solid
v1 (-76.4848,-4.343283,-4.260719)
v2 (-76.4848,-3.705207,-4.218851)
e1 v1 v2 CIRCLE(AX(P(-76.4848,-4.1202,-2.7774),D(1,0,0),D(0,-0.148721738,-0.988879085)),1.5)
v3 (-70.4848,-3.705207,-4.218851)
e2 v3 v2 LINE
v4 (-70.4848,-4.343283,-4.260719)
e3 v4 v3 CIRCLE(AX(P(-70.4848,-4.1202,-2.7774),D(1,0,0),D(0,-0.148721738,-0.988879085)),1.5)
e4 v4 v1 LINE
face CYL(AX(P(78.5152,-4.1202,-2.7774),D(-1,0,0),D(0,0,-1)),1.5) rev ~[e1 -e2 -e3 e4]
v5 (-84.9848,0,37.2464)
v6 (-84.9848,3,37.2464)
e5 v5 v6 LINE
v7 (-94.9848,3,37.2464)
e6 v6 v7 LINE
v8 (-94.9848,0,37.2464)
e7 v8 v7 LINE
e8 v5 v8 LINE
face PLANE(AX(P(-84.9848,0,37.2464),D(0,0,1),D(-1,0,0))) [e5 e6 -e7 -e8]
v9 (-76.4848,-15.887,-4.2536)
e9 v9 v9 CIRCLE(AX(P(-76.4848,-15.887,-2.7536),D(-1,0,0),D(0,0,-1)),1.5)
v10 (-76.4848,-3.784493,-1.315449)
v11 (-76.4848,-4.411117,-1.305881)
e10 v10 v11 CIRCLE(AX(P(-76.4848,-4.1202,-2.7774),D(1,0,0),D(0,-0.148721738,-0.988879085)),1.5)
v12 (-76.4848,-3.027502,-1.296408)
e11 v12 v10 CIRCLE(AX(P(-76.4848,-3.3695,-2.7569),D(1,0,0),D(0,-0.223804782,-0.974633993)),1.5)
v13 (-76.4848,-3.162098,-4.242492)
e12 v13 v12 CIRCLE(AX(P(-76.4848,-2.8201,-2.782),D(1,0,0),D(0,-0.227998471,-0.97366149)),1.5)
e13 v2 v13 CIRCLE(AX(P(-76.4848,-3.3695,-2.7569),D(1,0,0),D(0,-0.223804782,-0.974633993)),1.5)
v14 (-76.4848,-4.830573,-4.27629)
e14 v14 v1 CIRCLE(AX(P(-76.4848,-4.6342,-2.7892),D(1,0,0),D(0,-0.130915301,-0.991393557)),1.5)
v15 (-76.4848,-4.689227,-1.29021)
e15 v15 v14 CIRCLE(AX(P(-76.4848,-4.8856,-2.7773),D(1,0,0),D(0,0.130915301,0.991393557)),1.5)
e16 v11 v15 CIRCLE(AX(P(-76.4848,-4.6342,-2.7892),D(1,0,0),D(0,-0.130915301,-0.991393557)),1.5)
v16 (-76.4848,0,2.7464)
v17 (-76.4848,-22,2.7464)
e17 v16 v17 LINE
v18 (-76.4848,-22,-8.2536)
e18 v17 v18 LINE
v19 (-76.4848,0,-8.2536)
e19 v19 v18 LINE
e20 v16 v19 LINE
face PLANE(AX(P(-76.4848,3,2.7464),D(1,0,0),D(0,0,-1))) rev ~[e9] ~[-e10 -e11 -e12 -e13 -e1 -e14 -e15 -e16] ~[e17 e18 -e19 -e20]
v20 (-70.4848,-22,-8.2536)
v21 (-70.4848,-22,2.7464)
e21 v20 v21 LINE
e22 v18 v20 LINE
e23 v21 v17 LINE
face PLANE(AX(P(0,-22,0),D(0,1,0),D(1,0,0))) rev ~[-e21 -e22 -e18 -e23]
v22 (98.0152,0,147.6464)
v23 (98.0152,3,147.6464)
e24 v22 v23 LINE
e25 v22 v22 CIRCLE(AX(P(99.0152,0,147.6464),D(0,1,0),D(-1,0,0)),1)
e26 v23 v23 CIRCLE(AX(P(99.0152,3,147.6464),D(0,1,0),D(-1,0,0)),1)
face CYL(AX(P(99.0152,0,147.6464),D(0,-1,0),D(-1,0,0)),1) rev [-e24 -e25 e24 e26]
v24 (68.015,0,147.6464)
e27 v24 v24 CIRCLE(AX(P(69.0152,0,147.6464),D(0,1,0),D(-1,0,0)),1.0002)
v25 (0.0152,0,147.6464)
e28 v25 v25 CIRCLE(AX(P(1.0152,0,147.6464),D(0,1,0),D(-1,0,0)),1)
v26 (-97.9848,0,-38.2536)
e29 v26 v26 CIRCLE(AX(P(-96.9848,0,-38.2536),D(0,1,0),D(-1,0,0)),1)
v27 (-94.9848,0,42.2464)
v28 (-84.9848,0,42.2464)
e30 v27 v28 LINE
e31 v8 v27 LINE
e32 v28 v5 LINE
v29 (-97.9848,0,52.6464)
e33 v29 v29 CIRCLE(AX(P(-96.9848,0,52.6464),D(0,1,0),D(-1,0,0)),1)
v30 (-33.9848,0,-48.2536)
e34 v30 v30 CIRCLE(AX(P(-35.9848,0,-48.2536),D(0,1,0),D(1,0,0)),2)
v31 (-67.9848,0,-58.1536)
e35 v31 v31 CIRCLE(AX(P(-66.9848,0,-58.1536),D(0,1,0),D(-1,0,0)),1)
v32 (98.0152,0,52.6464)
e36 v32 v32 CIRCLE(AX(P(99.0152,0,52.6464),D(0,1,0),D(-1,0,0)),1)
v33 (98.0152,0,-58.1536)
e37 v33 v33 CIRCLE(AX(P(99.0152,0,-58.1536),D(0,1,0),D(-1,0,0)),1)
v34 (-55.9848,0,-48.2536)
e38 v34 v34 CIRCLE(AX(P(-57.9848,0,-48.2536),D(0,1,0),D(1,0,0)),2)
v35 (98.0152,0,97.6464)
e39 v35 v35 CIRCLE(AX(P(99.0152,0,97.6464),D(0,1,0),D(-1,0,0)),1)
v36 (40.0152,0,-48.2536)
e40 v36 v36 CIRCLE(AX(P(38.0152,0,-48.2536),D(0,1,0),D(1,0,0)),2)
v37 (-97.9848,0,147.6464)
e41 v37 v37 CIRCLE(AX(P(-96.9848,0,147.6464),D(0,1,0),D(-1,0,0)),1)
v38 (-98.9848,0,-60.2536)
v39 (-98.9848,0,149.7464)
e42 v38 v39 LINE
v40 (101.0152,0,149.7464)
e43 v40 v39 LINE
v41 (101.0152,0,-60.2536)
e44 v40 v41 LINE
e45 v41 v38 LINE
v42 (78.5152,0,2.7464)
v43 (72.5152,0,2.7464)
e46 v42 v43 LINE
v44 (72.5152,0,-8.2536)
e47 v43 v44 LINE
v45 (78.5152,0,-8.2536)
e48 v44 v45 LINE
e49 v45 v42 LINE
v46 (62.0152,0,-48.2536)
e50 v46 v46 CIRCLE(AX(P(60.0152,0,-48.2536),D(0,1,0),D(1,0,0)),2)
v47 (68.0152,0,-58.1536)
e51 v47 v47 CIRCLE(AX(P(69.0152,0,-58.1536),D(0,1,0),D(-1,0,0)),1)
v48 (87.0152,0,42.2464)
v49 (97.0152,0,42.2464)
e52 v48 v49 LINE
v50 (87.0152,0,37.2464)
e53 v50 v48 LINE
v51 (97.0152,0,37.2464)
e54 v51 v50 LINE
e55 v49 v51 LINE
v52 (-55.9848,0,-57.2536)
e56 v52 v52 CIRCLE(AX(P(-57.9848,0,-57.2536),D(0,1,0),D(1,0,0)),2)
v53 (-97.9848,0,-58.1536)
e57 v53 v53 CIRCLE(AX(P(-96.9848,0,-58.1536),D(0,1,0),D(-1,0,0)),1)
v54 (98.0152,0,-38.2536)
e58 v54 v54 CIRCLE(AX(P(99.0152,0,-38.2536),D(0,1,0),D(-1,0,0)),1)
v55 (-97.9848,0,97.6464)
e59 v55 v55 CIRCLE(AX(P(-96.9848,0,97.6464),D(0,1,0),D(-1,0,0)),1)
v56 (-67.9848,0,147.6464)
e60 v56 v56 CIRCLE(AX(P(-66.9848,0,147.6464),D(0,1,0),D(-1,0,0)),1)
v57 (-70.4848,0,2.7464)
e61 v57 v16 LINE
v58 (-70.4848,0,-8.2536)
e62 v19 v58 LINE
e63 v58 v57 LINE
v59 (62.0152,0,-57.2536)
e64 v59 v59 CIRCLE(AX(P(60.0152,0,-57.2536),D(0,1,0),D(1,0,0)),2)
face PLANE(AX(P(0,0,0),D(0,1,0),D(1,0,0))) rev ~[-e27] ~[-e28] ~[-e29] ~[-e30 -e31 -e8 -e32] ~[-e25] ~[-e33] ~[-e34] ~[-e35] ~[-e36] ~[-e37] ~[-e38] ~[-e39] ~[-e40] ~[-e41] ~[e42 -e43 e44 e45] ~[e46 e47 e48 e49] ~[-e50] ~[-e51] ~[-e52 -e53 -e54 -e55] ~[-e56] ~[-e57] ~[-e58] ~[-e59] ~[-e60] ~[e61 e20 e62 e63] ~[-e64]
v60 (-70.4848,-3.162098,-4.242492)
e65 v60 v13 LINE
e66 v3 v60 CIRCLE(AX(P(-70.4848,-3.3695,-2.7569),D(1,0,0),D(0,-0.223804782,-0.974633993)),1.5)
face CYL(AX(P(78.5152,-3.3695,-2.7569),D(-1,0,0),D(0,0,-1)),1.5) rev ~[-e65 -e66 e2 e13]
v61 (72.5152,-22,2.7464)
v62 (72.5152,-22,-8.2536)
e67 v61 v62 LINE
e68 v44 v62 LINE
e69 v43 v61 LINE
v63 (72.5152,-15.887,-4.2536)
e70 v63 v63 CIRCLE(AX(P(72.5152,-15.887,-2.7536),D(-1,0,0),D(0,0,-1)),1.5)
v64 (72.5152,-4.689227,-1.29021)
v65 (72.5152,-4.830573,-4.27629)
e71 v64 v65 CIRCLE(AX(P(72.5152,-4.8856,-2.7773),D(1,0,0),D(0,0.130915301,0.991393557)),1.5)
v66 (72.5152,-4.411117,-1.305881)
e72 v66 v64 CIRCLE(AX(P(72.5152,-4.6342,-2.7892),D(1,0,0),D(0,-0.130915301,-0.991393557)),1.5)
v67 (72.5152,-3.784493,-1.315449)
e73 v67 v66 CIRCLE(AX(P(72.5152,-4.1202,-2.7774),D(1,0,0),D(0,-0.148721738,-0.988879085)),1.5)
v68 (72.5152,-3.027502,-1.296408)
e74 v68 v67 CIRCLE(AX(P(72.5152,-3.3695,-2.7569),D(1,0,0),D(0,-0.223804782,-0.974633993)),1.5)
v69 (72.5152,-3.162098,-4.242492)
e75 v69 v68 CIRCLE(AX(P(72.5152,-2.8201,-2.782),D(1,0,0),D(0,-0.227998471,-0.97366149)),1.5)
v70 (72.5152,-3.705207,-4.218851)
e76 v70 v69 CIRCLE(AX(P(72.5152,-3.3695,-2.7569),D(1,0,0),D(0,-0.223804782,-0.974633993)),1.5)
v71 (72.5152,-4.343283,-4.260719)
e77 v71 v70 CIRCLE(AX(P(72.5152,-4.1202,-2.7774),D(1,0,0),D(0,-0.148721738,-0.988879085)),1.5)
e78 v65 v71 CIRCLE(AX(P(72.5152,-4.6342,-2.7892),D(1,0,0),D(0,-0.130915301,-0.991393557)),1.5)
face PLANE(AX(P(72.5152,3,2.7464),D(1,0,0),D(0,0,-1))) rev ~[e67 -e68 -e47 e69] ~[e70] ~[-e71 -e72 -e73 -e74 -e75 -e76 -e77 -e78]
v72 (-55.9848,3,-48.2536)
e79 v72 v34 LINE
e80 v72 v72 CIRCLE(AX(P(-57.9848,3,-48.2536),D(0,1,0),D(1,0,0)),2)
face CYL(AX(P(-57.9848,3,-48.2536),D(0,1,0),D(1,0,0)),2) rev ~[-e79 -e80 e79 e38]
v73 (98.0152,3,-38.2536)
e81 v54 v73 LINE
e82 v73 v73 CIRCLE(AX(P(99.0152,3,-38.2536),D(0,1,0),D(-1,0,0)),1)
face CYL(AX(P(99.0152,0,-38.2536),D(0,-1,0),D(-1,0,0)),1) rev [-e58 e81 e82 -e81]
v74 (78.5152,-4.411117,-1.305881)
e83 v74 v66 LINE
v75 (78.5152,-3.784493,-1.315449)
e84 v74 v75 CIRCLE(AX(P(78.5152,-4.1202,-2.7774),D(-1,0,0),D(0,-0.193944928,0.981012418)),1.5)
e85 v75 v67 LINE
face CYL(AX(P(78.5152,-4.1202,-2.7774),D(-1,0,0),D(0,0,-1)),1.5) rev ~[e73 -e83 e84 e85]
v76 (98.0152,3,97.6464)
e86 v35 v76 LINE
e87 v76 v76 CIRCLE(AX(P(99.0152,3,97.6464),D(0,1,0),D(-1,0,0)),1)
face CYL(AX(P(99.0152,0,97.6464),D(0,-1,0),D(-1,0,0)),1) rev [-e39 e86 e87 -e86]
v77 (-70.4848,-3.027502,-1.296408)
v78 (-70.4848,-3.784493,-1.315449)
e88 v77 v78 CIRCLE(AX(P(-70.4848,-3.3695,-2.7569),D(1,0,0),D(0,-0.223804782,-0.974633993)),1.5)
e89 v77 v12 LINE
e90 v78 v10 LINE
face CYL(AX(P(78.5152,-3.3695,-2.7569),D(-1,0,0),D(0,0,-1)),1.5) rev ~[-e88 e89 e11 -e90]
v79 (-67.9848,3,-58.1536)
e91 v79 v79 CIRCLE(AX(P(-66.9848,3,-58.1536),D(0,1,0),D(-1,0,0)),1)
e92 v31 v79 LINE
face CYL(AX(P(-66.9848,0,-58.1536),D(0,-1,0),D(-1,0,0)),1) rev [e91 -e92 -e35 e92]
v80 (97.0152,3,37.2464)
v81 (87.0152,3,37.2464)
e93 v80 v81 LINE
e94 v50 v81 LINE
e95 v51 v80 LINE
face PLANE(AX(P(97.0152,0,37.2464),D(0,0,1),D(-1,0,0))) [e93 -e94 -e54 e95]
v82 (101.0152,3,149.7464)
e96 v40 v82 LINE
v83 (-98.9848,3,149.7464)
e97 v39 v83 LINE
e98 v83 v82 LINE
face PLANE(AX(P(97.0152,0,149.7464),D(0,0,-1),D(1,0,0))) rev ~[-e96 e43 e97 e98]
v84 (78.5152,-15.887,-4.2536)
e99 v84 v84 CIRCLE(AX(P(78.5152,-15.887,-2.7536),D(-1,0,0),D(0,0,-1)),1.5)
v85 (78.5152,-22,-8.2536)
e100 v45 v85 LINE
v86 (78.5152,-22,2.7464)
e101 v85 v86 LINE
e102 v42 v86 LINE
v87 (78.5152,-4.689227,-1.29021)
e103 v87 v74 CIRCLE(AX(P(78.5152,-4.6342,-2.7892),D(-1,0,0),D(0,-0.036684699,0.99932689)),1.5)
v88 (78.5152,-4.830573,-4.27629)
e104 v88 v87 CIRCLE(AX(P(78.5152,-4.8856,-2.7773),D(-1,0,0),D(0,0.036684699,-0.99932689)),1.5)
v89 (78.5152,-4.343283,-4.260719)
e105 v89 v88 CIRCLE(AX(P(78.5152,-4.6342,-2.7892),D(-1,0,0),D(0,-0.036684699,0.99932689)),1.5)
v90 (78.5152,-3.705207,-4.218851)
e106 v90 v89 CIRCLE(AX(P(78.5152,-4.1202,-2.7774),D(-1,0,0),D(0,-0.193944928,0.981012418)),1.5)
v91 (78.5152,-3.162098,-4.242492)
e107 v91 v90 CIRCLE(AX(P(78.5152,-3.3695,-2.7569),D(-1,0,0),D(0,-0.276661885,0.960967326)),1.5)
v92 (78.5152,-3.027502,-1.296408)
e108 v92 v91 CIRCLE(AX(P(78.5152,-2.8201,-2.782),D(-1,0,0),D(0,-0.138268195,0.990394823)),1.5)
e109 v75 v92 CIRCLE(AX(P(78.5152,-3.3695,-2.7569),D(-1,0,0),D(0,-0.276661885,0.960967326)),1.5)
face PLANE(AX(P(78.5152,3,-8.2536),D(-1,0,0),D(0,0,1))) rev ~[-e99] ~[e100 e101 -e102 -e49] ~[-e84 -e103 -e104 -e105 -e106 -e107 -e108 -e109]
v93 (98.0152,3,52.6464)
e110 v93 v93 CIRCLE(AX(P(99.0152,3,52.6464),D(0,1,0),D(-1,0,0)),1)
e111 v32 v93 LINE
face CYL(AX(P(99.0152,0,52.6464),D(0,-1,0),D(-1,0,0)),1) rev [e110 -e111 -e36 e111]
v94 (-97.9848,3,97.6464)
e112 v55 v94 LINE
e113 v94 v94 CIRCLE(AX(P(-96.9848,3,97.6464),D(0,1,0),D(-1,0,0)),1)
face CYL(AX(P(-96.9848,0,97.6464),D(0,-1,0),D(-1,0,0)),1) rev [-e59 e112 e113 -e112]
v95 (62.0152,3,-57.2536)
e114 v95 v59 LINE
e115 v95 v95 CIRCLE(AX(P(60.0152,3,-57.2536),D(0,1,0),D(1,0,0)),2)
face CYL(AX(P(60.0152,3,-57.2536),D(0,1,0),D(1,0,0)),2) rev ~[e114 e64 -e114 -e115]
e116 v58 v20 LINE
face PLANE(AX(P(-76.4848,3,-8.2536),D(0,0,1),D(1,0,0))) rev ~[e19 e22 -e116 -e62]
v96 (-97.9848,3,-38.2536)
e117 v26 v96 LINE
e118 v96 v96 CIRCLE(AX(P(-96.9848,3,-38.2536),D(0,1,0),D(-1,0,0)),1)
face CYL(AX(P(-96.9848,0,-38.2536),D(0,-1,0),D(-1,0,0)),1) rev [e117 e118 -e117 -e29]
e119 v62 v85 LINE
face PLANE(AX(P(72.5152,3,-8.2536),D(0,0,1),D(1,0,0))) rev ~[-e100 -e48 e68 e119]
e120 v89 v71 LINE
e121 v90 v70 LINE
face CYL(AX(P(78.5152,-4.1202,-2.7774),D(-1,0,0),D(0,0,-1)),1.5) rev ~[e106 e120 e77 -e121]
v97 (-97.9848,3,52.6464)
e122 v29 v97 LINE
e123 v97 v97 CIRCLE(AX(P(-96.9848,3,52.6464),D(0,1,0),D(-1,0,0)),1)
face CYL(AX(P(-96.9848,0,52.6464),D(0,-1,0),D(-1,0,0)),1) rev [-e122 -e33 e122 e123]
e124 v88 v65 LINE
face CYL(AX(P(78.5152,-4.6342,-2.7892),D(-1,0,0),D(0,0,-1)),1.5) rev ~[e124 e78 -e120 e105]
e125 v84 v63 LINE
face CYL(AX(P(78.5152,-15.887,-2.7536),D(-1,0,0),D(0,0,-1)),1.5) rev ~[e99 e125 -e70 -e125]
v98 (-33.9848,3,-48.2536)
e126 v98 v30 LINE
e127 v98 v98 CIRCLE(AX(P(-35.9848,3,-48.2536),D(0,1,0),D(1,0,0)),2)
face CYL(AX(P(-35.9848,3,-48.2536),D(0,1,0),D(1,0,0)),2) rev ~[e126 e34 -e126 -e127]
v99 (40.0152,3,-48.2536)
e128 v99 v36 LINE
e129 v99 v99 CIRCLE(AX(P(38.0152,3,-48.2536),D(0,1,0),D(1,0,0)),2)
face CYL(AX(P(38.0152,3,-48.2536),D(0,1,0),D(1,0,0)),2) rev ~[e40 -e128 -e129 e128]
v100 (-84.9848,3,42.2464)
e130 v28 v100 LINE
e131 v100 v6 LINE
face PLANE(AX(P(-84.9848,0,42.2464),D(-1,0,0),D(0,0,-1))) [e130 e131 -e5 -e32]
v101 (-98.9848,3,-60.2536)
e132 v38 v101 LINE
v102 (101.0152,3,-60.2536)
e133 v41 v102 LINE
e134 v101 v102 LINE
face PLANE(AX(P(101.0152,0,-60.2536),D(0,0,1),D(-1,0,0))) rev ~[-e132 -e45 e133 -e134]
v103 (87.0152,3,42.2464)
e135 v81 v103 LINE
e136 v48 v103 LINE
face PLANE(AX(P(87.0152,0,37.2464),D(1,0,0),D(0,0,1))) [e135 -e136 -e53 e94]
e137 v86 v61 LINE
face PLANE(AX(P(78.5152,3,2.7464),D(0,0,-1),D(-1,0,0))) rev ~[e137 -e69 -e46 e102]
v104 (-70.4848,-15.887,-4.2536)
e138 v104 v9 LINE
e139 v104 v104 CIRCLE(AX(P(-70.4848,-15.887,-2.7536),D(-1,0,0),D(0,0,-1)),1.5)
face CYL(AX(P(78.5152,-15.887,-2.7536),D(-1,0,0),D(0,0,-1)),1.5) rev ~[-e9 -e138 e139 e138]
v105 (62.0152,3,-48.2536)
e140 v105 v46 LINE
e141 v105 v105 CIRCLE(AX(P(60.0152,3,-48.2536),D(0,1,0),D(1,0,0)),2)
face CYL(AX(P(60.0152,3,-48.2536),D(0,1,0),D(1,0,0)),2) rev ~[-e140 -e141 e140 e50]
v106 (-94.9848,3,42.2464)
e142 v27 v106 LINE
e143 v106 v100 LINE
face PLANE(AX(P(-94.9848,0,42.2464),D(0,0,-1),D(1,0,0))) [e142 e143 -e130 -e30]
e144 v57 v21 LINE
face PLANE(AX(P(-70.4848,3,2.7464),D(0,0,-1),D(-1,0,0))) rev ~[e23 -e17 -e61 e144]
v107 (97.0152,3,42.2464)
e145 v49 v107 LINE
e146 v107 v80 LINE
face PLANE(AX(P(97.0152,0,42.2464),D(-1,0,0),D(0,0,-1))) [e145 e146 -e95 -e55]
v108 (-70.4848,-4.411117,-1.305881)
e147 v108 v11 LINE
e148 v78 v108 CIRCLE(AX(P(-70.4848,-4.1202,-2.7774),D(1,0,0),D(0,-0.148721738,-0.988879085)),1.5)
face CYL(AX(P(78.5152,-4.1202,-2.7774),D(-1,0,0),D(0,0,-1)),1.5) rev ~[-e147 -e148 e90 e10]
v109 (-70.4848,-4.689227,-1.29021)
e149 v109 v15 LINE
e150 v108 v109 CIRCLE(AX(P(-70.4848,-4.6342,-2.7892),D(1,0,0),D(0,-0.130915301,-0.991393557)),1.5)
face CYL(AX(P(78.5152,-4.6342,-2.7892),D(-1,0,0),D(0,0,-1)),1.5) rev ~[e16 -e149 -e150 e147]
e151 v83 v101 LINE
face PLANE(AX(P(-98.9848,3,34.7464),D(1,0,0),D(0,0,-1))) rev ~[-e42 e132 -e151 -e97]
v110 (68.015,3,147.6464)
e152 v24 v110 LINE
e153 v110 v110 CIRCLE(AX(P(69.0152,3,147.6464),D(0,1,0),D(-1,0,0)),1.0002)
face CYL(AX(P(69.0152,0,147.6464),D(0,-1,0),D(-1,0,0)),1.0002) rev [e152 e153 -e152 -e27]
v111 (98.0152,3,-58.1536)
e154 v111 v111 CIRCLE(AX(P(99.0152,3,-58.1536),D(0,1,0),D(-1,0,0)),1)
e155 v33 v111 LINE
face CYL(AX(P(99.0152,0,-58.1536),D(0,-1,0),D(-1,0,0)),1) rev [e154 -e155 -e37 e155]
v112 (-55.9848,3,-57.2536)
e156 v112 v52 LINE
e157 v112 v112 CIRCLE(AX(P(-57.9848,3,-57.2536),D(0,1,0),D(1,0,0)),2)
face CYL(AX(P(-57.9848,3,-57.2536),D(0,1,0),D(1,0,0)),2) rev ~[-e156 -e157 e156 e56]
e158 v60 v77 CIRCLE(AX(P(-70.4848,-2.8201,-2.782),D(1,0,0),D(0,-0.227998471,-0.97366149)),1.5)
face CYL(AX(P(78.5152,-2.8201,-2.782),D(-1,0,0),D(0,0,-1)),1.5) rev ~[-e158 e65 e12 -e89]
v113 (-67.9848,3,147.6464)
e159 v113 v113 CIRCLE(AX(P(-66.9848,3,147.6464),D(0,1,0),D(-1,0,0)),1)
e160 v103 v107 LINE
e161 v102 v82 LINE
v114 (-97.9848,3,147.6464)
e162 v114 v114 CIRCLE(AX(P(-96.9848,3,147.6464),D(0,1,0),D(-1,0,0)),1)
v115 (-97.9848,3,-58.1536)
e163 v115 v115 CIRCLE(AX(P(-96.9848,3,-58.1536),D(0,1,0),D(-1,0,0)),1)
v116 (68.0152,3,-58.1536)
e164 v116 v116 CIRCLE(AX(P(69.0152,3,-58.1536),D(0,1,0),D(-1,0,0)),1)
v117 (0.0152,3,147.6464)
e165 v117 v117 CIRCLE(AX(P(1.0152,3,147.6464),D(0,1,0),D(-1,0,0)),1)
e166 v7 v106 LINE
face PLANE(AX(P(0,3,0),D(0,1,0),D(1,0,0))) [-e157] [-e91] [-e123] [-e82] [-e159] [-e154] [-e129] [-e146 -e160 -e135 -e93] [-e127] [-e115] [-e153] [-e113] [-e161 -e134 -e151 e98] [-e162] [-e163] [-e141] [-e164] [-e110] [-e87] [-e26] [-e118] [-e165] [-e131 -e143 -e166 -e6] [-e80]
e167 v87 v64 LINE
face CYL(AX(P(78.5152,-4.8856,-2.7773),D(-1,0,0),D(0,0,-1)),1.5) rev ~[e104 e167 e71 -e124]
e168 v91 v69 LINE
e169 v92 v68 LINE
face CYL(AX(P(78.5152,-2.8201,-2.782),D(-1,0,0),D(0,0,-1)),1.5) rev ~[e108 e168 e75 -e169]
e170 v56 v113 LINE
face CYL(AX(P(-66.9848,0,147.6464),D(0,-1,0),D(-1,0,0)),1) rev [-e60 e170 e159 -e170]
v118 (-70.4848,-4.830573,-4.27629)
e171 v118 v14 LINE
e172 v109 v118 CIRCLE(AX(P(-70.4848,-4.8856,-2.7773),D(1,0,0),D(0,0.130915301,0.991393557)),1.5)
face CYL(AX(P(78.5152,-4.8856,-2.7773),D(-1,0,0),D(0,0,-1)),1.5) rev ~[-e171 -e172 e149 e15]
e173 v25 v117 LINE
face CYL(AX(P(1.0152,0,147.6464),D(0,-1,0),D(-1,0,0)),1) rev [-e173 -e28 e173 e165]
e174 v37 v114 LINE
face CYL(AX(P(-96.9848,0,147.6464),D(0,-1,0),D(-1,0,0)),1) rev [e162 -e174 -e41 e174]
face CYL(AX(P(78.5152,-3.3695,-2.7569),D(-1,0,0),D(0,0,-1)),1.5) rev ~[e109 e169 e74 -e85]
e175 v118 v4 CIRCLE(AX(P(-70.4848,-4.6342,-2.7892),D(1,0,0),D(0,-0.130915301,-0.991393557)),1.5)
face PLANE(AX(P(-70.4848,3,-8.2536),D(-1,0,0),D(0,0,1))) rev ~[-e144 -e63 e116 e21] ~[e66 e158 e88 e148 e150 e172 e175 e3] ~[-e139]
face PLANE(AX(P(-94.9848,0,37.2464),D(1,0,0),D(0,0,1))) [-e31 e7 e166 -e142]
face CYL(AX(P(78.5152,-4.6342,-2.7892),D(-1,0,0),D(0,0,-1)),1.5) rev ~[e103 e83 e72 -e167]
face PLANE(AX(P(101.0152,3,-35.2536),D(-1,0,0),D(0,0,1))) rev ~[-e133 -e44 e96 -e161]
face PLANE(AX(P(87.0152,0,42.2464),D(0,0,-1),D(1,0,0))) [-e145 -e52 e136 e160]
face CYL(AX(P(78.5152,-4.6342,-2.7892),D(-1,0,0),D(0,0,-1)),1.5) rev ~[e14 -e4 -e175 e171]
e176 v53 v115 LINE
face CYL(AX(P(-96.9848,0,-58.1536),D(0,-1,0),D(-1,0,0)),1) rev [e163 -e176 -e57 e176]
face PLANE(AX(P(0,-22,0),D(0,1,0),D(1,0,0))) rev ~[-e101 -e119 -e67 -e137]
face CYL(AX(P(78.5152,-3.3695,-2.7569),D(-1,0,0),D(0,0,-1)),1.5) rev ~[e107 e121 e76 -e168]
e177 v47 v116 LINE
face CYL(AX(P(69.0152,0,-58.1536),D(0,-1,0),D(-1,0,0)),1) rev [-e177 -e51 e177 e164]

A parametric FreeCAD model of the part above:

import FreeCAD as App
import Part
import Sketcher

V = App.Vector

doc = App.newDocument("Part")
body = doc.addObject("PartDesign::Body", "Body")

# Sketch on XZ plane
sketch1 = body.newObject("Sketcher::SketchObject", "Sketch")
sketch1.AttachmentSupport = (doc.getObject("XZ_Plane"), [""])
sketch1.MapMode = "FlatFace"
sketch1.addGeometry(Part.LineSegment(V(101.0152, -35.2536, 0), V(101.0152, -60.2536, 0)), False)
sketch1.addGeometry(Part.LineSegment(V(101.0152, -60.2536, 0), V(65.0152, -60.2536, 0)), False)
sketch1.addGeometry(Part.LineSegment(V(65.0152, -60.2536, 0), V(65.0152, -45.2536, 0)), False)
sketch1.addGeometry(Part.LineSegment(V(65.0152, -45.2536, 0), V(-62.9848, -45.2536, 0)), False)
sketch1.addGeometry(Part.LineSegment(V(-62.9848, -45.2536, 0), V(-62.9848, -60.2536, 0)), False)
sketch1.addGeometry(Part.LineSegment(V(-62.9848, -60.2536, 0), V(-98.9848, -60.2536, 0)), False)
sketch1.addGeometry(Part.LineSegment(V(-98.9848, -60.2536, 0), V(-98.9848, -35.2536, 0)), False)
sketch1.addGeometry(Part.LineSegment(V(-98.9848, -35.2536, 0), V(-76.9848, -35.2536, 0)), False)
sketch1.addGeometry(Part.LineSegment(V(-76.9848, -35.2536, 0), V(-76.9848, 34.7464, 0)), False)
sketch1.addGeometry(Part.LineSegment(V(-76.9848, 34.7464, 0), V(-98.9848, 34.7464, 0)), False)
sketch1.addGeometry(Part.LineSegment(V(-98.9848, 34.7464, 0), V(-98.9848, 149.7464, 0)), False)
sketch1.addGeometry(Part.LineSegment(V(-98.9848, 149.7464, 0), V(101.0152, 149.7464, 0)), False)
sketch1.addGeometry(Part.LineSegment(V(101.0152, 149.7464, 0), V(101.0152, 34.7464, 0)), False)
sketch1.addGeometry(Part.LineSegment(V(101.0152, 34.7464, 0), V(79.0152, 34.7464, 0)), False)
sketch1.addGeometry(Part.LineSegment(V(79.0152, 34.7464, 0), V(79.0152, -35.2536, 0)), False)
sketch1.addGeometry(Part.LineSegment(V(79.0152, -35.2536, 0), V(101.0152, -35.2536, 0)), False)
sketch1.addGeometry(Part.Circle(V(99.0152, -58.1536, 0), V(0, 0, 1), 1), False)
sketch1.addGeometry(Part.Circle(V(99.0152, -38.2536, 0), V(0, 0, 1), 1), False)
sketch1.addGeometry(Part.Circle(V(69.0152, -58.1536, 0), V(0, 0, 1), 1), False)
sketch1.addGeometry(Part.LineSegment(V(78.5152, -8.2536, 0), V(78.5152, 2.7464, 0)), False)
sketch1.addGeometry(Part.LineSegment(V(78.5152, 2.7464, 0), V(72.5152, 2.7464, 0)), False)
sketch1.addGeometry(Part.LineSegment(V(72.5152, 2.7464, 0), V(72.5152, -8.2536, 0)), False)
sketch1.addGeometry(Part.LineSegment(V(72.5152, -8.2536, 0), V(78.5152, -8.2536, 0)), False)
sketch1.addGeometry(Part.LineSegment(V(87.0152, 37.2464, 0), V(97.0152, 37.2464, 0)), False)
sketch1.addGeometry(Part.LineSegment(V(97.0152, 37.2464, 0), V(97.0152, 42.2464, 0)), False)
sketch1.addGeometry(Part.LineSegment(V(97.0152, 42.2464, 0), V(87.0152, 42.2464, 0)), False)
sketch1.addGeometry(Part.LineSegment(V(87.0152, 42.2464, 0), V(87.0152, 37.2464, 0)), False)
sketch1.addGeometry(Part.Circle(V(-66.9848, -58.1536, 0), V(0, 0, 1), 1), False)
sketch1.addGeometry(Part.Circle(V(-96.9848, -58.1536, 0), V(0, 0, 1), 1), False)
sketch1.addGeometry(Part.Circle(V(-96.9848, -38.2536, 0), V(0, 0, 1), 1), False)
sketch1.addGeometry(Part.LineSegment(V(-70.4848, -8.2536, 0), V(-70.4848, 2.7464, 0)), False)
sketch1.addGeometry(Part.LineSegment(V(-70.4848, 2.7464, 0), V(-76.4848, 2.7464, 0)), False)
sketch1.addGeometry(Part.LineSegment(V(-76.4848, 2.7464, 0), V(-76.4848, -8.2536, 0)), False)
sketch1.addGeometry(Part.LineSegment(V(-76.4848, -8.2536, 0), V(-70.4848, -8.2536, 0)), False)
sketch1.addGeometry(Part.LineSegment(V(-94.9848, 37.2464, 0), V(-84.9848, 37.2464, 0)), False)
sketch1.addGeometry(Part.LineSegment(V(-84.9848, 37.2464, 0), V(-84.9848, 42.2464, 0)), False)
sketch1.addGeometry(Part.LineSegment(V(-84.9848, 42.2464, 0), V(-94.9848, 42.2464, 0)), False)
sketch1.addGeometry(Part.LineSegment(V(-94.9848, 42.2464, 0), V(-94.9848, 37.2464, 0)), False)
sketch1.addGeometry(Part.Circle(V(99.0152, 52.6464, 0), V(0, 0, 1), 1), False)
sketch1.addGeometry(Part.Circle(V(99.0152, 97.6464, 0), V(0, 0, 1), 1), False)
sketch1.addGeometry(Part.Circle(V(99.0152, 147.6464, 0), V(0, 0, 1), 1), False)
sketch1.addGeometry(Part.Circle(V(69.0152, 147.6464, 0), V(0, 0, 1), 1.0002), False)
sketch1.addGeometry(Part.Circle(V(-96.9848, 52.6464, 0), V(0, 0, 1), 1), False)
sketch1.addGeometry(Part.Circle(V(1.0152, 147.6464, 0), V(0, 0, 1), 1), False)
sketch1.addGeometry(Part.Circle(V(-96.9848, 97.6464, 0), V(0, 0, 1), 1), False)
sketch1.addGeometry(Part.Circle(V(-66.9848, 147.6464, 0), V(0, 0, 1), 1), False)
sketch1.addGeometry(Part.Circle(V(-96.9848, 147.6464, 0), V(0, 0, 1), 1), False)
sketch1.addConstraint(Sketcher.Constraint("Coincident", 0, 2, 1, 1))
sketch1.addConstraint(Sketcher.Constraint("Coincident", 1, 2, 2, 1))
sketch1.addConstraint(Sketcher.Constraint("Coincident", 2, 2, 3, 1))
sketch1.addConstraint(Sketcher.Constraint("Coincident", 3, 2, 4, 1))
sketch1.addConstraint(Sketcher.Constraint("Coincident", 4, 2, 5, 1))
sketch1.addConstraint(Sketcher.Constraint("Coincident", 5, 2, 6, 1))
sketch1.addConstraint(Sketcher.Constraint("Coincident", 6, 2, 7, 1))
sketch1.addConstraint(Sketcher.Constraint("Coincident", 7, 2, 8, 1))
sketch1.addConstraint(Sketcher.Constraint("Coincident", 8, 2, 9, 1))
sketch1.addConstraint(Sketcher.Constraint("Coincident", 9, 2, 10, 1))
sketch1.addConstraint(Sketcher.Constraint("Coincident", 10, 2, 11, 1))
sketch1.addConstraint(Sketcher.Constraint("Coincident", 11, 2, 12, 1))
sketch1.addConstraint(Sketcher.Constraint("Coincident", 12, 2, 13, 1))
sketch1.addConstraint(Sketcher.Constraint("Coincident", 13, 2, 14, 1))
sketch1.addConstraint(Sketcher.Constraint("Coincident", 14, 2, 15, 1))
sketch1.addConstraint(Sketcher.Constraint("Coincident", 15, 2, 0, 1))
sketch1.addConstraint(Sketcher.Constraint("Coincident", 19, 2, 20, 1))
sketch1.addConstraint(Sketcher.Constraint("Coincident", 20, 2, 21, 1))
sketch1.addConstraint(Sketcher.Constraint("Coincident", 21, 2, 22, 1))
sketch1.addConstraint(Sketcher.Constraint("Coincident", 22, 2, 19, 1))
sketch1.addConstraint(Sketcher.Constraint("Coincident", 23, 2, 24, 1))
sketch1.addConstraint(Sketcher.Constraint("Coincident", 24, 2, 25, 1))
sketch1.addConstraint(Sketcher.Constraint("Coincident", 25, 2, 26, 1))
sketch1.addConstraint(Sketcher.Constraint("Coincident", 26, 2, 23, 1))
sketch1.addConstraint(Sketcher.Constraint("Coincident", 30, 2, 31, 1))
sketch1.addConstraint(Sketcher.Constraint("Coincident", 31, 2, 32, 1))
sketch1.addConstraint(Sketcher.Constraint("Coincident", 32, 2, 33, 1))
sketch1.addConstraint(Sketcher.Constraint("Coincident", 33, 2, 30, 1))
sketch1.addConstraint(Sketcher.Constraint("Coincident", 34, 2, 35, 1))
sketch1.addConstraint(Sketcher.Constraint("Coincident", 35, 2, 36, 1))
sketch1.addConstraint(Sketcher.Constraint("Coincident", 36, 2, 37, 1))
sketch1.addConstraint(Sketcher.Constraint("Coincident", 37, 2, 34, 1))
sketch1.addConstraint(Sketcher.Constraint("Vertical", 0))
sketch1.addConstraint(Sketcher.Constraint("Horizontal", 1))
sketch1.addConstraint(Sketcher.Constraint("Vertical", 2))
sketch1.addConstraint(Sketcher.Constraint("Horizontal", 3))
sketch1.addConstraint(Sketcher.Constraint("Vertical", 4))
sketch1.addConstraint(Sketcher.Constraint("Horizontal", 5))
sketch1.addConstraint(Sketcher.Constraint("Vertical", 6))
sketch1.addConstraint(Sketcher.Constraint("Horizontal", 7))
sketch1.addConstraint(Sketcher.Constraint("Vertical", 8))
sketch1.addConstraint(Sketcher.Constraint("Horizontal", 9))
sketch1.addConstraint(Sketcher.Constraint("Vertical", 10))
sketch1.addConstraint(Sketcher.Constraint("Horizontal", 11))
sketch1.addConstraint(Sketcher.Constraint("Vertical", 12))
sketch1.addConstraint(Sketcher.Constraint("Horizontal", 13))
sketch1.addConstraint(Sketcher.Constraint("Vertical", 14))
sketch1.addConstraint(Sketcher.Constraint("Horizontal", 15))
sketch1.addConstraint(Sketcher.Constraint("Vertical", 19))
sketch1.addConstraint(Sketcher.Constraint("Horizontal", 20))
sketch1.addConstraint(Sketcher.Constraint("Vertical", 21))
sketch1.addConstraint(Sketcher.Constraint("Horizontal", 22))
sketch1.addConstraint(Sketcher.Constraint("Horizontal", 23))
sketch1.addConstraint(Sketcher.Constraint("Vertical", 24))
sketch1.addConstraint(Sketcher.Constraint("Horizontal", 25))
sketch1.addConstraint(Sketcher.Constraint("Vertical", 26))
sketch1.addConstraint(Sketcher.Constraint("Vertical", 30))
sketch1.addConstraint(Sketcher.Constraint("Horizontal", 31))
sketch1.addConstraint(Sketcher.Constraint("Vertical", 32))
sketch1.addConstraint(Sketcher.Constraint("Horizontal", 33))
sketch1.addConstraint(Sketcher.Constraint("Horizontal", 34))
sketch1.addConstraint(Sketcher.Constraint("Vertical", 35))
sketch1.addConstraint(Sketcher.Constraint("Horizontal", 36))
sketch1.addConstraint(Sketcher.Constraint("Vertical", 37))
sketch1.addConstraint(Sketcher.Constraint("Equal", 16, 17))
sketch1.addConstraint(Sketcher.Constraint("Equal", 17, 18))
sketch1.addConstraint(Sketcher.Constraint("Equal", 18, 27))
sketch1.addConstraint(Sketcher.Constraint("Equal", 27, 28))
sketch1.addConstraint(Sketcher.Constraint("Equal", 28, 29))
sketch1.addConstraint(Sketcher.Constraint("Equal", 29, 38))
sketch1.addConstraint(Sketcher.Constraint("Equal", 38, 39))
sketch1.addConstraint(Sketcher.Constraint("Equal", 39, 40))
sketch1.addConstraint(Sketcher.Constraint("Equal", 40, 41))
sketch1.addConstraint(Sketcher.Constraint("Equal", 41, 42))
sketch1.addConstraint(Sketcher.Constraint("Equal", 42, 43))
sketch1.addConstraint(Sketcher.Constraint("Equal", 43, 44))
sketch1.addConstraint(Sketcher.Constraint("Equal", 44, 45))
sketch1.addConstraint(Sketcher.Constraint("Equal", 45, 46))
sketch1.addConstraint(Sketcher.Constraint("Horizontal", 16, 3, 18, 3))
sketch1.addConstraint(Sketcher.Constraint("Horizontal", 18, 3, 27, 3))
sketch1.addConstraint(Sketcher.Constraint("Horizontal", 27, 3, 28, 3))
sketch1.addConstraint(Sketcher.Constraint("Horizontal", 17, 3, 29, 3))
sketch1.addConstraint(Sketcher.Constraint("Horizontal", 40, 3, 41, 3))
sketch1.addConstraint(Sketcher.Constraint("Horizontal", 38, 3, 42, 3))
sketch1.addConstraint(Sketcher.Constraint("Horizontal", 41, 3, 43, 3))
sketch1.addConstraint(Sketcher.Constraint("Horizontal", 39, 3, 44, 3))
sketch1.addConstraint(Sketcher.Constraint("Horizontal", 43, 3, 45, 3))
sketch1.addConstraint(Sketcher.Constraint("Horizontal", 45, 3, 46, 3))
sketch1.addConstraint(Sketcher.Constraint("Horizontal", 1, 2, 4, 2))
sketch1.addConstraint(Sketcher.Constraint("Horizontal", 9, 2, 12, 2))
sketch1.addConstraint(Sketcher.Constraint("Horizontal", 7, 2, 14, 2))
sketch1.addConstraint(Sketcher.Constraint("Horizontal", 20, 2, 30, 2))
sketch1.addConstraint(Sketcher.Constraint("Horizontal", 22, 2, 32, 2))
sketch1.addConstraint(Sketcher.Constraint("Horizontal", 26, 2, 34, 2))
sketch1.addConstraint(Sketcher.Constraint("Horizontal", 25, 2, 35, 2))
sketch1.addConstraint(Sketcher.Constraint("Vertical", 16, 3, 17, 3))
sketch1.addConstraint(Sketcher.Constraint("Vertical", 28, 3, 29, 3))
sketch1.addConstraint(Sketcher.Constraint("Vertical", 17, 3, 38, 3))
sketch1.addConstraint(Sketcher.Constraint("Vertical", 38, 3, 39, 3))
sketch1.addConstraint(Sketcher.Constraint("Vertical", 39, 3, 40, 3))
sketch1.addConstraint(Sketcher.Constraint("Vertical", 18, 3, 41, 3))
sketch1.addConstraint(Sketcher.Constraint("Vertical", 29, 3, 42, 3))
sketch1.addConstraint(Sketcher.Constraint("Vertical", 42, 3, 44, 3))
sketch1.addConstraint(Sketcher.Constraint("Vertical", 27, 3, 45, 3))
sketch1.addConstraint(Sketcher.Constraint("Vertical", 44, 3, 46, 3))
sketch1.addConstraint(Sketcher.Constraint("Vertical", 6, 2, 9, 2))
sketch1.addConstraint(Sketcher.Constraint("Vertical", 0, 2, 11, 2))
sketch1.addConstraint(Sketcher.Constraint("Equal", 1, 5))
sketch1.addConstraint(Sketcher.Constraint("Equal", 9, 13))
sketch1.addConstraint(Sketcher.Constraint("Equal", 22, 31))
sketch1.addConstraint(Sketcher.Constraint("Equal", 25, 34))
sketch1.addConstraint(Sketcher.Constraint("Diameter", 16, 2.0))
sketch1.addConstraint(Sketcher.Constraint("DistanceX", 1, 2, 1, 1, 36.0))
sketch1.addConstraint(Sketcher.Constraint("DistanceX", 3, 2, 3, 1, 128.0))
sketch1.addConstraint(Sketcher.Constraint("DistanceX", 7, 1, 7, 2, 22.0))
sketch1.addConstraint(Sketcher.Constraint("DistanceX", 20, 2, 20, 1, 6.0))
sketch1.addConstraint(Sketcher.Constraint("DistanceX", 23, 1, 23, 2, 10.0))
sketch1.addConstraint(Sketcher.Constraint("DistanceY", 2, 1, 2, 2, 15.0))
sketch1.addConstraint(Sketcher.Constraint("DistanceY", 8, 1, 8, 2, 70.0))
sketch1.addConstraint(Sketcher.Constraint("DistanceY", 19, 1, 19, 2, 11.0))
sketch1.addConstraint(Sketcher.Constraint("DistanceY", 24, 1, 24, 2, 5.0))
sketch1.addConstraint(Sketcher.Constraint("DistanceY", 39, 3, 40, 3, 50.0))
sketch1.addConstraint(Sketcher.Constraint("DistanceY", 38, 3, 40, 3, 95.0))
sketch1.addConstraint(Sketcher.Constraint("DistanceX", 16, 3, 0, 2, 2.0))
sketch1.addConstraint(Sketcher.Constraint("DistanceY", 0, 2, 17, 3, 22.0))
sketch1.addConstraint(Sketcher.Constraint("DistanceX", 18, 3, 0, 2, 32.0))
sketch1.addConstraint(Sketcher.Constraint("DistanceX", 27, 3, 3, 2, 4.0))
sketch1.addConstraint(Sketcher.Constraint("DistanceX", 5, 2, 28, 3, 2.0))
sketch1.addConstraint(Sketcher.Constraint("DistanceY", 3, 2, 6, 2, 10.0))
sketch1.addConstraint(Sketcher.Constraint("DistanceX", 10, 2, 43, 3, 100.0))
sketch1.addConstraint(Sketcher.Constraint("DistanceY", 19, 2, 13, 2, 32.0))
sketch1.addConstraint(Sketcher.Constraint("DistanceX", 23, 2, 12, 2, 4.0))
sketch1.addConstraint(Sketcher.Constraint("DistanceX", 9, 2, 36, 2, 4.0))
sketch1.addConstraint(Sketcher.Constraint("DistanceY", 0, 2, 16, 3, 2.1))
sketch1.addConstraint(Sketcher.Constraint("DistanceY", 46, 3, 10, 2, 2.1))
sketch1.addConstraint(Sketcher.Constraint("DistanceX", 19, 2, 12, 2, 22.5))
sketch1.addConstraint(Sketcher.Constraint("DistanceX", 9, 2, 31, 2, 22.5))
sketch1.addConstraint(Sketcher.Constraint("DistanceY", 10, 1, 10, 2, 115.0))
sketch1.addConstraint(Sketcher.Constraint("DistanceY", 12, 2, 23, 2, 2.5))
sketch1.addConstraint(Sketcher.Constraint("DistanceX", -1, 1, 16, 3, 99.0152))
sketch1.addConstraint(Sketcher.Constraint("DistanceY", 16, 3, -1, 1, 58.1536))
pad1 = body.newObject("PartDesign::Pad", "Pad")
pad1.Profile = sketch1
pad1.Length = 3
pad1.Reversed = True

# Sketch on XZ plane
sketch2 = body.newObject("Sketcher::SketchObject", "Sketch001")
sketch2.AttachmentSupport = (doc.getObject("XZ_Plane"), [""])
sketch2.MapMode = "FlatFace"
sketch2.AttachmentOffset = App.Placement(V(0, 0, -3), App.Rotation())
sketch2.addGeometry(Part.LineSegment(V(65.0152, -45.2536, 0), V(65.0152, -60.2536, 0)), False)
sketch2.addGeometry(Part.LineSegment(V(65.0152, -60.2536, 0), V(-62.9848, -60.2536, 0)), False)
sketch2.addGeometry(Part.LineSegment(V(-62.9848, -60.2536, 0), V(-62.9848, -45.2536, 0)), False)
sketch2.addGeometry(Part.LineSegment(V(-62.9848, -45.2536, 0), V(65.0152, -45.2536, 0)), False)
sketch2.addGeometry(Part.Circle(V(-57.9848, -48.2536, 0), V(0, 0, 1), 2), False)
sketch2.addGeometry(Part.Circle(V(-35.9848, -48.2536, 0), V(0, 0, 1), 2), False)
sketch2.addGeometry(Part.Circle(V(38.0152, -48.2536, 0), V(0, 0, 1), 2), False)
sketch2.addGeometry(Part.Circle(V(60.0152, -48.2536, 0), V(0, 0, 1), 2), False)
sketch2.addGeometry(Part.Circle(V(-57.9848, -57.2536, 0), V(0, 0, 1), 2), False)
sketch2.addGeometry(Part.Circle(V(60.0152, -57.2536, 0), V(0, 0, 1), 2), False)
sketch2.addConstraint(Sketcher.Constraint("Coincident", 0, 2, 1, 1))
sketch2.addConstraint(Sketcher.Constraint("Coincident", 1, 2, 2, 1))
sketch2.addConstraint(Sketcher.Constraint("Coincident", 2, 2, 3, 1))
sketch2.addConstraint(Sketcher.Constraint("Coincident", 3, 2, 0, 1))
sketch2.addConstraint(Sketcher.Constraint("Vertical", 0))
sketch2.addConstraint(Sketcher.Constraint("Horizontal", 1))
sketch2.addConstraint(Sketcher.Constraint("Vertical", 2))
sketch2.addConstraint(Sketcher.Constraint("Horizontal", 3))
sketch2.addConstraint(Sketcher.Constraint("Equal", 4, 5))
sketch2.addConstraint(Sketcher.Constraint("Equal", 5, 6))
sketch2.addConstraint(Sketcher.Constraint("Equal", 6, 7))
sketch2.addConstraint(Sketcher.Constraint("Equal", 7, 8))
sketch2.addConstraint(Sketcher.Constraint("Equal", 8, 9))
sketch2.addConstraint(Sketcher.Constraint("Horizontal", 4, 3, 5, 3))
sketch2.addConstraint(Sketcher.Constraint("Horizontal", 5, 3, 6, 3))
sketch2.addConstraint(Sketcher.Constraint("Horizontal", 6, 3, 7, 3))
sketch2.addConstraint(Sketcher.Constraint("Horizontal", 8, 3, 9, 3))
sketch2.addConstraint(Sketcher.Constraint("Vertical", 4, 3, 8, 3))
sketch2.addConstraint(Sketcher.Constraint("Vertical", 7, 3, 9, 3))
sketch2.addConstraint(Sketcher.Constraint("Diameter", 4, 4.0))
sketch2.addConstraint(Sketcher.Constraint("DistanceX", 9, 3, 0, 2, 5.0))
sketch2.addConstraint(Sketcher.Constraint("DistanceY", 0, 2, 9, 3, 3.0))
sketch2.addConstraint(Sketcher.Constraint("DistanceX", 6, 3, 0, 2, 27.0))
sketch2.addConstraint(Sketcher.Constraint("DistanceX", 1, 2, 8, 3, 5.0))
sketch2.addConstraint(Sketcher.Constraint("DistanceX", 1, 2, 5, 3, 27.0))
sketch2.addConstraint(Sketcher.Constraint("DistanceY", 4, 3, 2, 2, 3.0))
sketch2.addConstraint(Sketcher.Constraint("DistanceX", 1, 2, 1, 1, 128.0))
sketch2.addConstraint(Sketcher.Constraint("DistanceY", 0, 2, 0, 1, 15.0))
sketch2.addConstraint(Sketcher.Constraint("DistanceX", 4, 3, -1, 1, 57.9848))
sketch2.addConstraint(Sketcher.Constraint("DistanceY", 4, 3, -1, 1, 48.2536))
pad2 = body.newObject("PartDesign::Pad", "Pad001")
pad2.Profile = sketch2
pad2.Length = 3

# Sketch on XZ plane
sketch3 = body.newObject("Sketcher::SketchObject", "Sketch002")
sketch3.AttachmentSupport = (doc.getObject("XZ_Plane"), [""])
sketch3.MapMode = "FlatFace"
sketch3.AttachmentOffset = App.Placement(V(0, 0, -3), App.Rotation())
sketch3.addGeometry(Part.LineSegment(V(79.0152, 34.7464, 0), V(101.0152, 34.7464, 0)), False)
sketch3.addGeometry(Part.LineSegment(V(101.0152, 34.7464, 0), V(101.0152, -35.2536, 0)), False)
sketch3.addGeometry(Part.LineSegment(V(101.0152, -35.2536, 0), V(79.0152, -35.2536, 0)), False)
sketch3.addGeometry(Part.LineSegment(V(79.0152, -35.2536, 0), V(79.0152, 34.7464, 0)), False)
sketch3.addConstraint(Sketcher.Constraint("Coincident", 0, 2, 1, 1))
sketch3.addConstraint(Sketcher.Constraint("Coincident", 1, 2, 2, 1))
sketch3.addConstraint(Sketcher.Constraint("Coincident", 2, 2, 3, 1))
sketch3.addConstraint(Sketcher.Constraint("Coincident", 3, 2, 0, 1))
sketch3.addConstraint(Sketcher.Constraint("Horizontal", 0))
sketch3.addConstraint(Sketcher.Constraint("Vertical", 1))
sketch3.addConstraint(Sketcher.Constraint("Horizontal", 2))
sketch3.addConstraint(Sketcher.Constraint("Vertical", 3))
sketch3.addConstraint(Sketcher.Constraint("DistanceX", 0, 1, 0, 2, 22.0))
sketch3.addConstraint(Sketcher.Constraint("DistanceY", 1, 2, 1, 1, 70.0))
sketch3.addConstraint(Sketcher.Constraint("DistanceX", -1, 1, 0, 2, 101.0152))
sketch3.addConstraint(Sketcher.Constraint("DistanceY", -1, 1, 0, 2, 34.7464))
pad3 = body.newObject("PartDesign::Pad", "Pad002")
pad3.Profile = sketch3
pad3.Length = 3

# Sketch on XZ plane
sketch4 = body.newObject("Sketcher::SketchObject", "Sketch003")
sketch4.AttachmentSupport = (doc.getObject("XZ_Plane"), [""])
sketch4.MapMode = "FlatFace"
sketch4.AttachmentOffset = App.Placement(V(0, 0, -3), App.Rotation())
sketch4.addGeometry(Part.LineSegment(V(-76.9848, 34.7464, 0), V(-76.9848, -35.2536, 0)), False)
sketch4.addGeometry(Part.LineSegment(V(-76.9848, -35.2536, 0), V(-98.9848, -35.2536, 0)), False)
sketch4.addGeometry(Part.LineSegment(V(-98.9848, -35.2536, 0), V(-98.9848, 34.7464, 0)), False)
sketch4.addGeometry(Part.LineSegment(V(-98.9848, 34.7464, 0), V(-76.9848, 34.7464, 0)), False)
sketch4.addConstraint(Sketcher.Constraint("Coincident", 0, 2, 1, 1))
sketch4.addConstraint(Sketcher.Constraint("Coincident", 1, 2, 2, 1))
sketch4.addConstraint(Sketcher.Constraint("Coincident", 2, 2, 3, 1))
sketch4.addConstraint(Sketcher.Constraint("Coincident", 3, 2, 0, 1))
sketch4.addConstraint(Sketcher.Constraint("Vertical", 0))
sketch4.addConstraint(Sketcher.Constraint("Horizontal", 1))
sketch4.addConstraint(Sketcher.Constraint("Vertical", 2))
sketch4.addConstraint(Sketcher.Constraint("Horizontal", 3))
sketch4.addConstraint(Sketcher.Constraint("DistanceX", 1, 2, 1, 1, 22.0))
sketch4.addConstraint(Sketcher.Constraint("DistanceY", 0, 2, 0, 1, 70.0))
sketch4.addConstraint(Sketcher.Constraint("DistanceX", 0, 2, -1, 1, 76.9848))
sketch4.addConstraint(Sketcher.Constraint("DistanceY", 0, 2, -1, 1, 35.2536))
pad4 = body.newObject("PartDesign::Pad", "Pad003")
pad4.Profile = sketch4
pad4.Length = 3

# Sketch on XZ plane
sketch5 = body.newObject("Sketcher::SketchObject", "Sketch004")
sketch5.AttachmentSupport = (doc.getObject("XZ_Plane"), [""])
sketch5.MapMode = "FlatFace"
sketch5.AttachmentOffset = App.Placement(V(0, 0, -3), App.Rotation())
sketch5.addGeometry(Part.LineSegment(V(72.5152, 2.7464, 0), V(78.5152, 2.7464, 0)), False)
sketch5.addGeometry(Part.LineSegment(V(78.5152, 2.7464, 0), V(78.5152, -8.2536, 0)), False)
sketch5.addGeometry(Part.LineSegment(V(78.5152, -8.2536, 0), V(72.5152, -8.2536, 0)), False)
sketch5.addGeometry(Part.LineSegment(V(72.5152, -8.2536, 0), V(72.5152, 2.7464, 0)), False)
sketch5.addConstraint(Sketcher.Constraint("Coincident", 0, 2, 1, 1))
sketch5.addConstraint(Sketcher.Constraint("Coincident", 1, 2, 2, 1))
sketch5.addConstraint(Sketcher.Constraint("Coincident", 2, 2, 3, 1))
sketch5.addConstraint(Sketcher.Constraint("Coincident", 3, 2, 0, 1))
sketch5.addConstraint(Sketcher.Constraint("Horizontal", 0))
sketch5.addConstraint(Sketcher.Constraint("Vertical", 1))
sketch5.addConstraint(Sketcher.Constraint("Horizontal", 2))
sketch5.addConstraint(Sketcher.Constraint("Vertical", 3))
sketch5.addConstraint(Sketcher.Constraint("DistanceX", 0, 1, 0, 2, 6.0))
sketch5.addConstraint(Sketcher.Constraint("DistanceY", 1, 2, 1, 1, 11.0))
sketch5.addConstraint(Sketcher.Constraint("DistanceX", -1, 1, 0, 2, 78.5152))
sketch5.addConstraint(Sketcher.Constraint("DistanceY", -1, 1, 0, 2, 2.7464))
pad5 = body.newObject("PartDesign::Pad", "Pad004")
pad5.Profile = sketch5
pad5.Length = 25

# Sketch on XZ plane
sketch6 = body.newObject("Sketcher::SketchObject", "Sketch005")
sketch6.AttachmentSupport = (doc.getObject("XZ_Plane"), [""])
sketch6.MapMode = "FlatFace"
sketch6.AttachmentOffset = App.Placement(V(0, 0, -3), App.Rotation())
sketch6.addGeometry(Part.LineSegment(V(-76.4848, -8.2536, 0), V(-76.4848, 2.7464, 0)), False)
sketch6.addGeometry(Part.LineSegment(V(-76.4848, 2.7464, 0), V(-70.4848, 2.7464, 0)), False)
sketch6.addGeometry(Part.LineSegment(V(-70.4848, 2.7464, 0), V(-70.4848, -8.2536, 0)), False)
sketch6.addGeometry(Part.LineSegment(V(-70.4848, -8.2536, 0), V(-76.4848, -8.2536, 0)), False)
sketch6.addConstraint(Sketcher.Constraint("Coincident", 0, 2, 1, 1))
sketch6.addConstraint(Sketcher.Constraint("Coincident", 1, 2, 2, 1))
sketch6.addConstraint(Sketcher.Constraint("Coincident", 2, 2, 3, 1))
sketch6.addConstraint(Sketcher.Constraint("Coincident", 3, 2, 0, 1))
sketch6.addConstraint(Sketcher.Constraint("Vertical", 0))
sketch6.addConstraint(Sketcher.Constraint("Horizontal", 1))
sketch6.addConstraint(Sketcher.Constraint("Vertical", 2))
sketch6.addConstraint(Sketcher.Constraint("Horizontal", 3))
sketch6.addConstraint(Sketcher.Constraint("DistanceX", 1, 1, 1, 2, 6.0))
sketch6.addConstraint(Sketcher.Constraint("DistanceY", 0, 1, 0, 2, 11.0))
sketch6.addConstraint(Sketcher.Constraint("DistanceX", 0, 2, -1, 1, 76.4848))
sketch6.addConstraint(Sketcher.Constraint("DistanceY", -1, 1, 0, 2, 2.7464))
pad6 = body.newObject("PartDesign::Pad", "Pad005")
pad6.Profile = sketch6
pad6.Length = 25

# Sketch on YZ plane
sketch7 = body.newObject("Sketcher::SketchObject", "Sketch006")
sketch7.AttachmentSupport = (doc.getObject("YZ_Plane"), [""])
sketch7.MapMode = "FlatFace"
sketch7.AttachmentOffset = App.Placement(V(0, 0, 78.5152), App.Rotation())
sketch7.addGeometry(Part.Circle(V(-15.887, -2.7536, 0), V(0, 0, 1), 1.5), False)
sketch7.addConstraint(Sketcher.Constraint("Diameter", 0, 3.0))
sketch7.addConstraint(Sketcher.Constraint("DistanceX", 0, 3, -1, 1, 15.887))
sketch7.addConstraint(Sketcher.Constraint("DistanceY", 0, 3, -1, 1, 2.7536))
doc.recompute()
hole = body.newObject("PartDesign::Hole", "Hole")
hole.Profile = sketch7
hole.ThreadType = "None"
hole.Diameter = 3
hole.DepthType = "ThroughAll"

# Sketch on YZ plane
sketch8 = body.newObject("Sketcher::SketchObject", "Sketch007")
sketch8.AttachmentSupport = (doc.getObject("YZ_Plane"), [""])
sketch8.MapMode = "FlatFace"
sketch8.AttachmentOffset = App.Placement(V(0, 0, 78.5152), App.Rotation())
sketch8.addGeometry(Part.Circle(V(-4.8856, -2.7773, 0), V(0, 0, 1), 1.5), False)
sketch8.addConstraint(Sketcher.Constraint("Diameter", 0, 3.0))
sketch8.addConstraint(Sketcher.Constraint("DistanceX", 0, 3, -1, 1, 4.8856))
sketch8.addConstraint(Sketcher.Constraint("DistanceY", 0, 3, -1, 1, 2.7773))
doc.recompute()
hole2 = body.newObject("PartDesign::Hole", "Hole001")
hole2.Profile = sketch8
hole2.ThreadType = "None"
hole2.Diameter = 3
hole2.DepthType = "ThroughAll"

# Sketch on YZ plane
sketch9 = body.newObject("Sketcher::SketchObject", "Sketch008")
sketch9.AttachmentSupport = (doc.getObject("YZ_Plane"), [""])
sketch9.MapMode = "FlatFace"
sketch9.AttachmentOffset = App.Placement(V(0, 0, 78.5152), App.Rotation())
sketch9.addGeometry(Part.Circle(V(-4.6342, -2.7892, 0), V(0, 0, 1), 1.5), False)
sketch9.addConstraint(Sketcher.Constraint("Diameter", 0, 3.0))
sketch9.addConstraint(Sketcher.Constraint("DistanceX", 0, 3, -1, 1, 4.6342))
sketch9.addConstraint(Sketcher.Constraint("DistanceY", 0, 3, -1, 1, 2.7892))
doc.recompute()
hole3 = body.newObject("PartDesign::Hole", "Hole002")
hole3.Profile = sketch9
hole3.ThreadType = "None"
hole3.Diameter = 3
hole3.DepthType = "ThroughAll"

# Sketch on YZ plane
sketch10 = body.newObject("Sketcher::SketchObject", "Sketch009")
sketch10.AttachmentSupport = (doc.getObject("YZ_Plane"), [""])
sketch10.MapMode = "FlatFace"
sketch10.AttachmentOffset = App.Placement(V(0, 0, 78.5152), App.Rotation())
sketch10.addGeometry(Part.Circle(V(-4.1202, -2.7774, 0), V(0, 0, 1), 1.5), False)
sketch10.addConstraint(Sketcher.Constraint("Diameter", 0, 3.0))
sketch10.addConstraint(Sketcher.Constraint("DistanceX", 0, 3, -1, 1, 4.1202))
sketch10.addConstraint(Sketcher.Constraint("DistanceY", 0, 3, -1, 1, 2.7774))
doc.recompute()
hole4 = body.newObject("PartDesign::Hole", "Hole003")
hole4.Profile = sketch10
hole4.ThreadType = "None"
hole4.Diameter = 3
hole4.DepthType = "ThroughAll"

# Sketch on YZ plane
sketch11 = body.newObject("Sketcher::SketchObject", "Sketch010")
sketch11.AttachmentSupport = (doc.getObject("YZ_Plane"), [""])
sketch11.MapMode = "FlatFace"
sketch11.AttachmentOffset = App.Placement(V(0, 0, 78.5152), App.Rotation())
sketch11.addGeometry(Part.Circle(V(-3.3695, -2.7569, 0), V(0, 0, 1), 1.5), False)
sketch11.addConstraint(Sketcher.Constraint("Diameter", 0, 3.0))
sketch11.addConstraint(Sketcher.Constraint("DistanceY", 0, 3, -1, 1, 2.757))
sketch11.addConstraint(Sketcher.Constraint("DistanceX", 0, 3, -1, 1, 3.3695))
doc.recompute()
hole5 = body.newObject("PartDesign::Hole", "Hole004")
hole5.Profile = sketch11
hole5.ThreadType = "None"
hole5.Diameter = 3
hole5.DepthType = "ThroughAll"

# Sketch on YZ plane
sketch12 = body.newObject("Sketcher::SketchObject", "Sketch011")
sketch12.AttachmentSupport = (doc.getObject("YZ_Plane"), [""])
sketch12.MapMode = "FlatFace"
sketch12.AttachmentOffset = App.Placement(V(0, 0, 78.5152), App.Rotation())
sketch12.addGeometry(Part.Circle(V(-2.8201, -2.782, 0), V(0, 0, 1), 1.5), False)
sketch12.addConstraint(Sketcher.Constraint("Diameter", 0, 3.0))
sketch12.addConstraint(Sketcher.Constraint("DistanceX", 0, 3, -1, 1, 2.82))
sketch12.addConstraint(Sketcher.Constraint("DistanceY", 0, 3, -1, 1, 2.782))
doc.recompute()
hole6 = body.newObject("PartDesign::Hole", "Hole005")
hole6.Profile = sketch12
hole6.ThreadType = "None"
hole6.Diameter = 3
hole6.DepthType = "ThroughAll"

doc.recompute()
